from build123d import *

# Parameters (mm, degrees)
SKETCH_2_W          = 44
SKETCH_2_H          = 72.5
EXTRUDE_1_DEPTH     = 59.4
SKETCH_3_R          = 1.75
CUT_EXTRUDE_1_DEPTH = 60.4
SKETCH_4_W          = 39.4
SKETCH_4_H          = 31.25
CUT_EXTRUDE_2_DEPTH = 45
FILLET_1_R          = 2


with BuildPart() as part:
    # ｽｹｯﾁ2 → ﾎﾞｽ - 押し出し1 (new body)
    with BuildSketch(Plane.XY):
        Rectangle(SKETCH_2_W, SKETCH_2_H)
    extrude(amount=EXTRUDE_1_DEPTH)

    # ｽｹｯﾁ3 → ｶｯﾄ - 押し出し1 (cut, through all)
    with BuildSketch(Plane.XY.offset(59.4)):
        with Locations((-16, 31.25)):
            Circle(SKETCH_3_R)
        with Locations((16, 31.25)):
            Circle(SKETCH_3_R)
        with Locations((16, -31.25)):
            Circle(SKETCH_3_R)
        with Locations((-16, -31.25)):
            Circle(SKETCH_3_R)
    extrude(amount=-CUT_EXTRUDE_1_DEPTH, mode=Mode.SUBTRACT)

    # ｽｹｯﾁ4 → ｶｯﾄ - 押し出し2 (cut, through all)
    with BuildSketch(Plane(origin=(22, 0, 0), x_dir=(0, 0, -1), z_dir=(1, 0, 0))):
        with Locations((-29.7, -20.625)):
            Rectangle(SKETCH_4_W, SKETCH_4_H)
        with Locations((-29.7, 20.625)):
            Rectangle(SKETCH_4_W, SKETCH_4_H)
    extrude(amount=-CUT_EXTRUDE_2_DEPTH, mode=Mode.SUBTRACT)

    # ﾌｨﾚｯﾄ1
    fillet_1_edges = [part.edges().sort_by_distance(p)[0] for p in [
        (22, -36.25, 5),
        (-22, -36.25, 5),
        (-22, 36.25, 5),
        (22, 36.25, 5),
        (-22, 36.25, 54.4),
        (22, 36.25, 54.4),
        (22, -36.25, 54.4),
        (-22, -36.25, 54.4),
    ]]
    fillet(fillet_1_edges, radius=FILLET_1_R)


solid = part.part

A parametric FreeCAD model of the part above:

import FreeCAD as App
import Part
import Sketcher


def edges_at(feature, points):
    """Names of the edges that pass closest to the given points."""
    edges = feature.Shape.Edges
    near = lambda p: min(range(len(edges)), key=lambda i: edges[i].distToShape(Part.Vertex(*p))[0])
    return sorted({f"Edge{near(p) + 1}" for p in points})

doc = App.newDocument("Part")
body = doc.addObject("PartDesign::Body", "Body")

# Sketch on XY plane
sketch1 = body.newObject("Sketcher::SketchObject", "Sketch")
sketch1.AttachmentSupport = (doc.getObject("XY_Plane"), [""])
sketch1.MapMode = "FlatFace"
sketch1.addGeometry([
    Part.LineSegment(App.Vector(-22, 36, 0), App.Vector(-22, -36, 0)),
    Part.LineSegment(App.Vector(-22, -36, 0), App.Vector(22, -36, 0)),
    Part.LineSegment(App.Vector(22, -36, 0), App.Vector(22, 36, 0)),
    Part.LineSegment(App.Vector(22, 36, 0), App.Vector(-22, 36, 0)),
], False)
sketch1.addConstraint([
    Sketcher.Constraint("Coincident", 0, 2, 1, 1),
    Sketcher.Constraint("Coincident", 1, 2, 2, 1),
    Sketcher.Constraint("Coincident", 2, 2, 3, 1),
    Sketcher.Constraint("Coincident", 3, 2, 0, 1),
    Sketcher.Constraint("Vertical", 0),
    Sketcher.Constraint("Horizontal", 1),
    Sketcher.Constraint("Vertical", 2),
    Sketcher.Constraint("Horizontal", 3),
    Sketcher.Constraint("Symmetric", 0, 2, 2, 2, -1, 1),
    Sketcher.Constraint("DistanceX", 1, 1, 1, 2, 44.0),
    Sketcher.Constraint("DistanceY", 0, 2, 0, 1, 72.5),
])
pad1 = body.newObject("PartDesign::Pad", "Pad")
pad1.Profile = sketch1
pad1.Length = 59.4

# Sketch on XY plane
sketch2 = body.newObject("Sketcher::SketchObject", "Sketch001")
sketch2.AttachmentSupport = (doc.getObject("XY_Plane"), [""])
sketch2.MapMode = "FlatFace"
sketch2.AttachmentOffset = App.Placement(App.Vector(0, 0, 59.4), App.Rotation())
sketch2.addGeometry([
    Part.Circle(App.Vector(-16, 31.2, 0), App.Vector(0, 0, 1), 1.8),
    Part.Circle(App.Vector(16, 31.2, 0), App.Vector(0, 0, 1), 1.8),
    Part.Circle(App.Vector(16, -31.2, 0), App.Vector(0, 0, 1), 1.8),
    Part.Circle(App.Vector(-16, -31.2, 0), App.Vector(0, 0, 1), 1.8),
], False)
sketch2.addConstraint([
    Sketcher.Constraint("Equal", 0, 1),
    Sketcher.Constraint("Equal", 1, 2),
    Sketcher.Constraint("Equal", 2, 3),
    Sketcher.Constraint("Symmetric", 0, 3, 2, 3, -1, 1),
    Sketcher.Constraint("Symmetric", 1, 3, 3, 3, -1, 1),
    Sketcher.Constraint("Symmetric", 0, 3, 1, 3, -2),
    Sketcher.Constraint("Diameter", 0, 3.5),
    Sketcher.Constraint("DistanceX", 0, 3, -1, 1, 16.0),
    Sketcher.Constraint("DistanceY", 2, 3, 1, 3, 62.5),
])
pocket1 = body.newObject("PartDesign::Pocket", "Pocket")
pocket1.Profile = sketch2
pocket1.Type = "ThroughAll"

# Sketch on YZ plane
sketch3 = body.newObject("Sketcher::SketchObject", "Sketch002")
sketch3.AttachmentSupport = (doc.getObject("YZ_Plane"), [""])
sketch3.MapMode = "FlatFace"
sketch3.AttachmentOffset = App.Placement(App.Vector(0, 0, 22), App.Rotation())
sketch3.addGeometry([
    Part.LineSegment(App.Vector(-5, 49, 0), App.Vector(-36, 49, 0)),  # 0
    Part.LineSegment(App.Vector(-36, 49, 0), App.Vector(-36, 10, 0)),  # 1
    Part.LineSegment(App.Vector(-36, 10, 0), App.Vector(-5, 10, 0)),  # 2
    Part.LineSegment(App.Vector(-5, 10, 0), App.Vector(-5, 49, 0)),  # 3
    Part.LineSegment(App.Vector(36, 49, 0), App.Vector(5, 49, 0)),  # 4
    Part.LineSegment(App.Vector(5, 49, 0), App.Vector(5, 10, 0)),  # 5
    Part.LineSegment(App.Vector(5, 10, 0), App.Vector(36, 10, 0)),  # 6
    Part.LineSegment(App.Vector(36, 10, 0), App.Vector(36, 49, 0)),  # 7
], False)
sketch3.addConstraint([
    Sketcher.Constraint("Coincident", 0, 2, 1, 1),
    Sketcher.Constraint("Coincident", 1, 2, 2, 1),
    Sketcher.Constraint("Coincident", 2, 2, 3, 1),
    Sketcher.Constraint("Coincident", 3, 2, 0, 1),
    Sketcher.Constraint("Coincident", 4, 2, 5, 1),
    Sketcher.Constraint("Coincident", 5, 2, 6, 1),
    Sketcher.Constraint("Coincident", 6, 2, 7, 1),
    Sketcher.Constraint("Coincident", 7, 2, 4, 1),
    Sketcher.Constraint("Horizontal", 0),
    Sketcher.Constraint("Vertical", 1),
    Sketcher.Constraint("Horizontal", 2),
    Sketcher.Constraint("Vertical", 3),
    Sketcher.Constraint("Horizontal", 4),
    Sketcher.Constraint("Vertical", 5),
    Sketcher.Constraint("Horizontal", 6),
    Sketcher.Constraint("Vertical", 7),
    Sketcher.Constraint("Symmetric", 3, 2, 4, 2, -2),
    Sketcher.Constraint("Symmetric", 1, 2, 6, 2, -2),
    Sketcher.Constraint("DistanceY", 1, 2, 1, 1, 39.4),
    Sketcher.Constraint("DistanceY", -1, 1, 1, 2, 10.0),
    Sketcher.Constraint("DistanceX", 2, 2, -1, 1, 5.0),
    Sketcher.Constraint("DistanceX", 0, 2, 0, 1, 31.25),
])
pocket2 = body.newObject("PartDesign::Pocket", "Pocket001")
pocket2.Profile = sketch3
pocket2.Type = "ThroughAll"
doc.recompute()

fillet = body.newObject("PartDesign::Fillet", "Fillet")
fillet.Base = (pocket2, edges_at(pocket2, [
    (22, -36.25, 5),
    (-22, -36.25, 5),
    (-22, 36.25, 5),
    (22, 36.25, 5),
    (-22, 36.25, 54.4),
    (22, 36.25, 54.4),
    (22, -36.25, 54.4),
    (-22, -36.25, 54.4),
]))
fillet.Radius = 2

doc.recompute()
